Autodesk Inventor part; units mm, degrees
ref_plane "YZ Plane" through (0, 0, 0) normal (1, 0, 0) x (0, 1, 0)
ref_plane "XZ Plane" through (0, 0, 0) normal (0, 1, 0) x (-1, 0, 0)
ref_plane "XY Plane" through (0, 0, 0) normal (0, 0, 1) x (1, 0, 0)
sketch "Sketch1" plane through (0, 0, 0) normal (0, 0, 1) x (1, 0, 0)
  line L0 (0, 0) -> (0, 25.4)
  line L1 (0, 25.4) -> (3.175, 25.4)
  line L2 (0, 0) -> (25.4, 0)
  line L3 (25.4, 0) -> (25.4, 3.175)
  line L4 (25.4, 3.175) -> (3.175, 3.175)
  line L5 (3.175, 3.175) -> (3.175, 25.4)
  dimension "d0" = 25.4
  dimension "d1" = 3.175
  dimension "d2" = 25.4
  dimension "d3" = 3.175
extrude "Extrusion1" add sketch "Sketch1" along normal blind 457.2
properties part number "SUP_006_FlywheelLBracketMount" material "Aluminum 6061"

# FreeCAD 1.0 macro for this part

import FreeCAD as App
import Part
import Sketcher
Q = App.Units.Quantity

doc = App.newDocument("Part")
body = doc.addObject("PartDesign::Body", "Body")

# Sketch on XY plane
sketch1 = doc.addObject("Sketcher::SketchObject", "Sketch")
body.addObject(sketch1)
sketch1.AttachmentSupport = (doc.XY_Plane, [""])
sketch1.MapMode = "FlatFace"
sketch1.addGeometry(Part.LineSegment(App.Vector(0, 25.4, 0), App.Vector(0, 0, 0)), False)
sketch1.addGeometry(Part.LineSegment(App.Vector(0, 0, 0), App.Vector(25.4, 0, 0)), False)
sketch1.addGeometry(Part.LineSegment(App.Vector(25.4, 0, 0), App.Vector(25.4, 3.175, 0)), False)
sketch1.addGeometry(Part.LineSegment(App.Vector(25.4, 3.175, 0), App.Vector(3.175, 3.175, 0)), False)
sketch1.addGeometry(Part.LineSegment(App.Vector(3.175, 3.175, 0), App.Vector(3.175, 25.4, 0)), False)
sketch1.addGeometry(Part.LineSegment(App.Vector(3.175, 25.4, 0), App.Vector(0, 25.4, 0)), False)
sketch1.addConstraint(Sketcher.Constraint("Coincident", 0, 2, 1, 1))
sketch1.addConstraint(Sketcher.Constraint("Coincident", 1, 2, 2, 1))
sketch1.addConstraint(Sketcher.Constraint("Coincident", 2, 2, 3, 1))
sketch1.addConstraint(Sketcher.Constraint("Coincident", 3, 2, 4, 1))
sketch1.addConstraint(Sketcher.Constraint("Coincident", 4, 2, 5, 1))
sketch1.addConstraint(Sketcher.Constraint("Coincident", 5, 2, 0, 1))
sketch1.addConstraint(Sketcher.Constraint("Vertical", 0))
sketch1.addConstraint(Sketcher.Constraint("Horizontal", 1))
sketch1.addConstraint(Sketcher.Constraint("Vertical", 2))
sketch1.addConstraint(Sketcher.Constraint("Horizontal", 3))
sketch1.addConstraint(Sketcher.Constraint("Vertical", 4))
sketch1.addConstraint(Sketcher.Constraint("Horizontal", 5))
sketch1.addConstraint(Sketcher.Constraint("Coincident", 0, 2, -1, 1))
sketch1.addConstraint(Sketcher.Constraint("Equal", 1, 0))
sketch1.addConstraint(Sketcher.Constraint("Equal", 5, 2))
sketch1.addConstraint(Sketcher.Constraint("DistanceX", 1, 1, 1, 2, Q("1 in")))
sketch1.addConstraint(Sketcher.Constraint("DistanceX", 5, 2, 5, 1, Q("0.125 in")))
pad1 = doc.addObject("PartDesign::Pad", "Pad")
body.addObject(pad1)
pad1.Profile = sketch1
pad1.Length = Q("18 in")

doc.recompute()
